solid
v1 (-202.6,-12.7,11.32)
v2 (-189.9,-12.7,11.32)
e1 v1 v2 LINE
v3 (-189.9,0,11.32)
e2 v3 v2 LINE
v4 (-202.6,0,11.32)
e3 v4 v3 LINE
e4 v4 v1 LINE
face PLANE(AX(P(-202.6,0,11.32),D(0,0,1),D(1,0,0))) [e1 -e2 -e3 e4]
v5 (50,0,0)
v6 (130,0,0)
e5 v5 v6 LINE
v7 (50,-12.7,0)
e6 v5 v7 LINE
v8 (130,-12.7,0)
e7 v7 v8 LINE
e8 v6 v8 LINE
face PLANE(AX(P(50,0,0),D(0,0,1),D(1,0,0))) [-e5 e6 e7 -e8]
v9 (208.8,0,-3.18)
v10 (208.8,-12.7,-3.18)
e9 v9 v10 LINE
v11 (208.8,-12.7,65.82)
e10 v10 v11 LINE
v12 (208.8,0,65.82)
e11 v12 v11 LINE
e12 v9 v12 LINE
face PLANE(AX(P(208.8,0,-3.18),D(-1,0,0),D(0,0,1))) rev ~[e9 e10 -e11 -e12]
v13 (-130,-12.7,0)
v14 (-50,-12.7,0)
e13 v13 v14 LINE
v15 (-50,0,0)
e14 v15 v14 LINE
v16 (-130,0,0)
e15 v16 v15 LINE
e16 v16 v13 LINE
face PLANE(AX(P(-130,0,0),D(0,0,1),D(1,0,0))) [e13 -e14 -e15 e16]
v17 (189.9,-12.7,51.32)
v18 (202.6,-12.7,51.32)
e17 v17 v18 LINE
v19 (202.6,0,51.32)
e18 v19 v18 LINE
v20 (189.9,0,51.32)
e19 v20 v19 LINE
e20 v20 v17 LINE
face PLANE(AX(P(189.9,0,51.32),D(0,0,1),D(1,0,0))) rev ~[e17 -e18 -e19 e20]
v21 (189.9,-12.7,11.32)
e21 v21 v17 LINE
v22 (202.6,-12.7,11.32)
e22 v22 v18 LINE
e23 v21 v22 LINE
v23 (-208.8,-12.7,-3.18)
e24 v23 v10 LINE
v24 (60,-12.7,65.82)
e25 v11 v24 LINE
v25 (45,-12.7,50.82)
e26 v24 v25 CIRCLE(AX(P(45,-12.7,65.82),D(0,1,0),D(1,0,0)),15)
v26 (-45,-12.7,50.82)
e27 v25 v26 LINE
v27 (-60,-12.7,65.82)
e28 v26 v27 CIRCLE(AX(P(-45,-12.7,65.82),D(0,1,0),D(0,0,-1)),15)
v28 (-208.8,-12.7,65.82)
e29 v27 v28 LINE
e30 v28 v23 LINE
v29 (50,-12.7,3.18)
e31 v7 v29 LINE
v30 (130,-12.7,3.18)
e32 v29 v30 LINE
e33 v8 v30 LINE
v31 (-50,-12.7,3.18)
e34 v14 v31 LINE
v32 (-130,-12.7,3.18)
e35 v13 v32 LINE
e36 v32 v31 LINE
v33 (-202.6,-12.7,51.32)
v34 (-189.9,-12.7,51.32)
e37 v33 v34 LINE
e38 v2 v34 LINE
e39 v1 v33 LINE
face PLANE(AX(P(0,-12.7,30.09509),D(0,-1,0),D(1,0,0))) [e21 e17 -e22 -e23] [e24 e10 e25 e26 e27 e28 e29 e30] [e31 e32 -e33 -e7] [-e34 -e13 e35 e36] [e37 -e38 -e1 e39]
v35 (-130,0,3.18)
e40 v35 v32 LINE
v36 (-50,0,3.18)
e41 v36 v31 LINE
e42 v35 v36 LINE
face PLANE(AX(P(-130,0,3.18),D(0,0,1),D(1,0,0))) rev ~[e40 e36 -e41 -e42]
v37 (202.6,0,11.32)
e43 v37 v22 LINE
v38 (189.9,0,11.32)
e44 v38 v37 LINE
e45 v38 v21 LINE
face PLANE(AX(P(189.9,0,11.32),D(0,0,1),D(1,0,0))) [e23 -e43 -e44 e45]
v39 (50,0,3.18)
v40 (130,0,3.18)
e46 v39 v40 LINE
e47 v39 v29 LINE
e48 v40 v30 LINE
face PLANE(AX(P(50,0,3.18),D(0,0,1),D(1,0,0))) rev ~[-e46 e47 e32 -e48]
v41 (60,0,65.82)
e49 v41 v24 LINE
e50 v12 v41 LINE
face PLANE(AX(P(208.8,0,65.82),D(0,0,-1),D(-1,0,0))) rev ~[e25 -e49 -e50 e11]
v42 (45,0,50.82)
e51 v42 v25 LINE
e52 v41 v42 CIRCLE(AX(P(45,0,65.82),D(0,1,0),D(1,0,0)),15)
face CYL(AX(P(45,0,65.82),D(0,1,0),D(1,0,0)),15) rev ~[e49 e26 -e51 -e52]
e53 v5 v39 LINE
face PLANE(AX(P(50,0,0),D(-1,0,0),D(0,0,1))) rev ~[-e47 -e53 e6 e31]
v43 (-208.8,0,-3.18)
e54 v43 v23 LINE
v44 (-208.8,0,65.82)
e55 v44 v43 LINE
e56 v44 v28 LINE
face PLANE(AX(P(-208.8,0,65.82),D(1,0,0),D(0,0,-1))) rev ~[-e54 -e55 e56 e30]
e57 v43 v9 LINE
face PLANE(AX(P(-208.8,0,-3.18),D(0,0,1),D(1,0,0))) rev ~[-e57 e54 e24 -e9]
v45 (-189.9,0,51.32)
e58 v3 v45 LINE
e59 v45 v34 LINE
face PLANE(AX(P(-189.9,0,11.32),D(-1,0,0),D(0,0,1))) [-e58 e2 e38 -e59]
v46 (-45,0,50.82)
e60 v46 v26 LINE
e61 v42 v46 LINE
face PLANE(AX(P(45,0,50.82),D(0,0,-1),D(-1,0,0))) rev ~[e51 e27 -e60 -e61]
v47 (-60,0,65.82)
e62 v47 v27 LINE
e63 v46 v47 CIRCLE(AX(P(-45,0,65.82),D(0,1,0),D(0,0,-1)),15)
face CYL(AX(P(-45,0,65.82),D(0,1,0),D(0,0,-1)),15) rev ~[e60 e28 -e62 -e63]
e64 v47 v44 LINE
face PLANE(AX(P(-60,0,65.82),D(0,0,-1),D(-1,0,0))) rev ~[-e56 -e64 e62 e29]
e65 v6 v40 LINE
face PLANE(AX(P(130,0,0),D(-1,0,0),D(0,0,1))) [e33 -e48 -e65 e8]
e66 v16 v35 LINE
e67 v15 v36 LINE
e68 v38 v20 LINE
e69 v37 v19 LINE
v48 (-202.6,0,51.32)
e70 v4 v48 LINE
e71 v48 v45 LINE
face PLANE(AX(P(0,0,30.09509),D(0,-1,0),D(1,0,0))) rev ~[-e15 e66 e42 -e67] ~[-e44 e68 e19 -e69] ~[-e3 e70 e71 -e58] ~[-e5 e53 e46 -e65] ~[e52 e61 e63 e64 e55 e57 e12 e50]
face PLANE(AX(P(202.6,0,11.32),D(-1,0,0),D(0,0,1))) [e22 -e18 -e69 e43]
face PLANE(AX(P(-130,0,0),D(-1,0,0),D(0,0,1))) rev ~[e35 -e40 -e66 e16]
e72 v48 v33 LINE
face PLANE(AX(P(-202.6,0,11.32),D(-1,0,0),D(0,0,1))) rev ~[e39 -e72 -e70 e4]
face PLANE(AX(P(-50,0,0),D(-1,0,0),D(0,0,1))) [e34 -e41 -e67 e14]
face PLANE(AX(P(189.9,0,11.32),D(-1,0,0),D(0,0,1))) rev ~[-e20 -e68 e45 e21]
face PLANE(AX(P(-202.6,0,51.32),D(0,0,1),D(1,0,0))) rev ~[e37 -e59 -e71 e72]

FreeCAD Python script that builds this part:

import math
import FreeCAD as App
import Part
import Sketcher

V = App.Vector


def add_polygon(sketch, points):
    """Adds a closed chain of lines whose ends are joined by coincident constraints."""
    first, n = sketch.GeometryCount, len(points)
    for a, b in zip(points, points[1:] + points[:1]):
        sketch.addGeometry(Part.LineSegment(App.Vector(*a, 0), App.Vector(*b, 0)), False)
    for i in range(n):
        sketch.addConstraint(Sketcher.Constraint("Coincident", first + i, 2, first + (i + 1) % n, 1))

doc = App.newDocument("Part")
body = doc.addObject("PartDesign::Body", "Body")

sketch1 = doc.addObject("Sketcher::SketchObject", "Sketch")
body.addObject(sketch1)
sketch1.AttachmentSupport = (doc.XZ_Plane, [""])
sketch1.MapMode = "FlatFace"
sketch1.addGeometry(Part.LineSegment(V(-208.8, 65.8, 0), V(-208.8, -3.2, 0)), False)
sketch1.addGeometry(Part.LineSegment(V(-208.8, -3.2, 0), V(208.8, -3.2, 0)), False)
sketch1.addGeometry(Part.LineSegment(V(208.8, -3.2, 0), V(208.8, 65.8, 0)), False)
sketch1.addGeometry(Part.LineSegment(V(208.8, 65.8, 0), V(60, 65.8, 0)), False)
sketch1.addGeometry(Part.ArcOfCircle(Part.Circle(V(45, 65.8, 0), V(0, 0, 1), 15), math.radians(-90), math.radians(0)), False)
sketch1.addGeometry(Part.LineSegment(V(45, 50.8, 0), V(-45, 50.8, 0)), False)
sketch1.addGeometry(Part.ArcOfCircle(Part.Circle(V(-45, 65.8, 0), V(0, 0, 1), 15), math.radians(180), math.radians(270)), False)
sketch1.addGeometry(Part.LineSegment(V(-60, 65.8, 0), V(-208.8, 65.8, 0)), False)
add_polygon(sketch1, [(-50, 0), (-130, 0), (-130, 3.2), (-50, 3.2)])
add_polygon(sketch1, [(130, 0), (50, 0), (50, 3.2), (130, 3.2)])
add_polygon(sketch1, [(-189.9, 11.3), (-202.6, 11.3), (-202.6, 51.3), (-189.9, 51.3)])
add_polygon(sketch1, [(202.6, 11.3), (189.9, 11.3), (189.9, 51.3), (202.6, 51.3)])
sketch1.addConstraint([
    Sketcher.Constraint("Coincident", 0, 2, 1, 1),
    Sketcher.Constraint("Coincident", 1, 2, 2, 1),
    Sketcher.Constraint("Coincident", 2, 2, 3, 1),
    Sketcher.Constraint("Coincident", 3, 2, 4, 2),
    Sketcher.Constraint("Tangent", 4, 1, 5, 1),
    Sketcher.Constraint("Tangent", 5, 2, 6, 2),
    Sketcher.Constraint("Coincident", 6, 1, 7, 1),
    Sketcher.Constraint("Coincident", 7, 2, 0, 1),
    Sketcher.Constraint("Vertical", 0),
    Sketcher.Constraint("Horizontal", 1),
    Sketcher.Constraint("Vertical", 2),
    Sketcher.Constraint("Horizontal", 3),
    Sketcher.Constraint("Horizontal", 5),
    Sketcher.Constraint("Horizontal", 7),
    Sketcher.Constraint("Horizontal", 8),
    Sketcher.Constraint("Vertical", 9),
    Sketcher.Constraint("Horizontal", 10),
    Sketcher.Constraint("Vertical", 11),
    Sketcher.Constraint("Horizontal", 12),
    Sketcher.Constraint("Vertical", 13),
    Sketcher.Constraint("Horizontal", 14),
    Sketcher.Constraint("Vertical", 15),
    Sketcher.Constraint("Horizontal", 16),
    Sketcher.Constraint("Vertical", 17),
    Sketcher.Constraint("Horizontal", 18),
    Sketcher.Constraint("Vertical", 19),
    Sketcher.Constraint("Horizontal", 20),
    Sketcher.Constraint("Vertical", 21),
    Sketcher.Constraint("Horizontal", 22),
    Sketcher.Constraint("Vertical", 23),
    Sketcher.Constraint("Equal", 4, 6),
    Sketcher.Constraint("Symmetric", 11, 2, 12, 2, -1, 1),
    Sketcher.Constraint("Symmetric", 3, 2, 6, 1, -2),
    Sketcher.Constraint("Symmetric", 9, 2, 14, 2, -2),
    Sketcher.Constraint("Symmetric", 19, 2, 20, 2, -2),
    Sketcher.Constraint("Symmetric", 17, 2, 22, 2, -2),
    Sketcher.Constraint("PointOnObject", 8, 2, -1),
    Sketcher.Constraint("Horizontal", 6, 3, 2, 2),
    Sketcher.Constraint("Equal", 3, 7),
    Sketcher.Constraint("Radius", 4, 15.0),
    Sketcher.Constraint("DistanceX", 5, 2, 5, 1, 90.0),
    Sketcher.Constraint("DistanceX", 8, 2, 8, 1, 80.0),
    Sketcher.Constraint("DistanceY", 0, 2, 0, 1, 69.0),
    Sketcher.Constraint("DistanceY", 17, 1, 17, 2, 40.0),
    Sketcher.Constraint("DistanceX", 1, 1, 1, 2, 417.6),
    Sketcher.Constraint("DistanceX", 16, 2, 16, 1, 12.7),
    Sketcher.Constraint("DistanceX", 8, 2, -1, 1, 130.0),
    Sketcher.Constraint("DistanceY", 9, 1, 9, 2, 3.18),
    Sketcher.Constraint("DistanceX", 16, 2, -1, 1, 202.6),
    Sketcher.Constraint("DistanceY", 0, 2, 16, 2, 14.5),
    Sketcher.Constraint("DistanceY", -1, 1, 4, 3, 65.82),
])
pad1 = doc.addObject("PartDesign::Pad", "Pad")
body.addObject(pad1)
pad1.Profile = sketch1
pad1.Length = 12.7

doc.recompute()
